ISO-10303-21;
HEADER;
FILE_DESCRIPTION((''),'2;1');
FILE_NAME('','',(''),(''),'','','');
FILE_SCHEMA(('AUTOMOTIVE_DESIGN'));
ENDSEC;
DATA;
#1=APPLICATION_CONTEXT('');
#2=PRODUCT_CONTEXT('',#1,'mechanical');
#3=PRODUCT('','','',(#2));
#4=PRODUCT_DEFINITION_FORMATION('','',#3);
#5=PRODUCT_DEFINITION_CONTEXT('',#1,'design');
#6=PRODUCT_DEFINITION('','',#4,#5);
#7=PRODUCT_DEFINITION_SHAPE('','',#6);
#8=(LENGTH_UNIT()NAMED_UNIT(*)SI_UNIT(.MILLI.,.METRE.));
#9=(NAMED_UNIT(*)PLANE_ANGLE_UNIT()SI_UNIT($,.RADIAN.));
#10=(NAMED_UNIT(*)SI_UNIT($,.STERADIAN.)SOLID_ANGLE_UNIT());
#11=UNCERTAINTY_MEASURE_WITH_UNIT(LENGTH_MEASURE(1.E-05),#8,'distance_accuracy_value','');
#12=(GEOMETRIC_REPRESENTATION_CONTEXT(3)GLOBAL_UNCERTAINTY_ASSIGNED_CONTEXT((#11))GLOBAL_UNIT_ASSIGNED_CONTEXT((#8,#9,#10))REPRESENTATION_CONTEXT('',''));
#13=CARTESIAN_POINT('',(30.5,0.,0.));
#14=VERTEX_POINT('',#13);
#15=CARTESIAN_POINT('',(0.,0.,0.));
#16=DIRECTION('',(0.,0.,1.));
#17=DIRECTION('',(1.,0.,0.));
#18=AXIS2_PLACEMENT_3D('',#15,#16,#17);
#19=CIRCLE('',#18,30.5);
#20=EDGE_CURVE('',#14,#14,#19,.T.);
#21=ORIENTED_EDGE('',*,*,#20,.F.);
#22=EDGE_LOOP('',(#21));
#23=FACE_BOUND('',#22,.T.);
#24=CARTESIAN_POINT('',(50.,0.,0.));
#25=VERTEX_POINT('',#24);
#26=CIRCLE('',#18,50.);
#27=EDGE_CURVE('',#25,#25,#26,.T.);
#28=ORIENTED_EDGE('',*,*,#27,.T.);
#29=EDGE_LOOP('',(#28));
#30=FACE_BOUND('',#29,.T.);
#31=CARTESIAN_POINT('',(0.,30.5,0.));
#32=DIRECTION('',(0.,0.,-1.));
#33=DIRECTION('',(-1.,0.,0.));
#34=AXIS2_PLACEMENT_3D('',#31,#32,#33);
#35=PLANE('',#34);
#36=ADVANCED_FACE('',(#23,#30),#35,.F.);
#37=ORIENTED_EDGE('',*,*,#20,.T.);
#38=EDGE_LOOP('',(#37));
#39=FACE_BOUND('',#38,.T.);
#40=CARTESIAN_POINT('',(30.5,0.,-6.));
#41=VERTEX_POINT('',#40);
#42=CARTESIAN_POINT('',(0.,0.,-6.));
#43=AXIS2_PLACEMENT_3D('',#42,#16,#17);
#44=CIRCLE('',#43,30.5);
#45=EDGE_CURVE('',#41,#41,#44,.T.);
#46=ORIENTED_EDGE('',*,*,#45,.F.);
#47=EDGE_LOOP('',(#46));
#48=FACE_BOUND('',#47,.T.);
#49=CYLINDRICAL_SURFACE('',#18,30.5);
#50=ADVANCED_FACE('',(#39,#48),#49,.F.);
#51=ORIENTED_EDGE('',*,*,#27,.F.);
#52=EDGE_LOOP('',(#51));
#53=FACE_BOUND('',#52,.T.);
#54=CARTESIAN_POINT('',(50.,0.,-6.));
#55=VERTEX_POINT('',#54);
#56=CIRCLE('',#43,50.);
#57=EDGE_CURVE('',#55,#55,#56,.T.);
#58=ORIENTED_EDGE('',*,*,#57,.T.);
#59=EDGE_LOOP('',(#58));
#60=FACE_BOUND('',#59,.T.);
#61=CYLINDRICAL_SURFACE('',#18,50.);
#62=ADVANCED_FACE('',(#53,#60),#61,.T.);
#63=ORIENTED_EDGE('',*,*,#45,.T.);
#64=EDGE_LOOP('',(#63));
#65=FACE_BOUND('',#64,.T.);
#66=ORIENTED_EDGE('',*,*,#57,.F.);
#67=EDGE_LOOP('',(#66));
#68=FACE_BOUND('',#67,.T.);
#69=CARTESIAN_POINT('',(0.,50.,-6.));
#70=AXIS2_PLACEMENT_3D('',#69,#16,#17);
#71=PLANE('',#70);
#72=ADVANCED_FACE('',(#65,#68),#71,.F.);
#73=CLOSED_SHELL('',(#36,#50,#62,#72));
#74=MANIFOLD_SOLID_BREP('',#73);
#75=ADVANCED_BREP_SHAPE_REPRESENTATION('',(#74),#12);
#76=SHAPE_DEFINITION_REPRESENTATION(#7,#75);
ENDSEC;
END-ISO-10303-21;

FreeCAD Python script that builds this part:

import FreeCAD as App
import Part
import Sketcher


def add_polygon(sketch, points):
    """Adds a closed chain of lines whose ends are joined by coincident constraints."""
    first, n = sketch.GeometryCount, len(points)
    for a, b in zip(points, points[1:] + points[:1]):
        sketch.addGeometry(Part.LineSegment(App.Vector(*a, 0), App.Vector(*b, 0)), False)
    for i in range(n):
        sketch.addConstraint(Sketcher.Constraint("Coincident", first + i, 2, first + (i + 1) % n, 1))

doc = App.newDocument("Part")
body = doc.addObject("PartDesign::Body", "Body")

sketch1 = body.newObject("Sketcher::SketchObject", "Sketch")
sketch1.AttachmentSupport = (doc.getObject("YZ_Plane"), [""])
sketch1.MapMode = "FlatFace"
add_polygon(sketch1, [(50, 0), (30.5, 0), (30.5, -6), (50, -6)])
sketch1.addConstraint([
    Sketcher.Constraint("Horizontal", 0),
    Sketcher.Constraint("Vertical", 1),
    Sketcher.Constraint("Horizontal", 2),
    Sketcher.Constraint("Vertical", 3),
    Sketcher.Constraint("PointOnObject", 0, 2, -1),
    Sketcher.Constraint("DistanceY", 1, 2, 1, 1, 6.0),
    Sketcher.Constraint("DistanceX", 0, 2, 0, 1, 19.5),
    Sketcher.Constraint("DistanceX", -1, 1, 2, 2, 50.0),
])
revolution = body.newObject("PartDesign::Revolution", "Revolution")
revolution.Profile = sketch1
revolution.ReferenceAxis = (sketch1, ["V_Axis"])
revolution.Angle = 360

doc.recompute()
